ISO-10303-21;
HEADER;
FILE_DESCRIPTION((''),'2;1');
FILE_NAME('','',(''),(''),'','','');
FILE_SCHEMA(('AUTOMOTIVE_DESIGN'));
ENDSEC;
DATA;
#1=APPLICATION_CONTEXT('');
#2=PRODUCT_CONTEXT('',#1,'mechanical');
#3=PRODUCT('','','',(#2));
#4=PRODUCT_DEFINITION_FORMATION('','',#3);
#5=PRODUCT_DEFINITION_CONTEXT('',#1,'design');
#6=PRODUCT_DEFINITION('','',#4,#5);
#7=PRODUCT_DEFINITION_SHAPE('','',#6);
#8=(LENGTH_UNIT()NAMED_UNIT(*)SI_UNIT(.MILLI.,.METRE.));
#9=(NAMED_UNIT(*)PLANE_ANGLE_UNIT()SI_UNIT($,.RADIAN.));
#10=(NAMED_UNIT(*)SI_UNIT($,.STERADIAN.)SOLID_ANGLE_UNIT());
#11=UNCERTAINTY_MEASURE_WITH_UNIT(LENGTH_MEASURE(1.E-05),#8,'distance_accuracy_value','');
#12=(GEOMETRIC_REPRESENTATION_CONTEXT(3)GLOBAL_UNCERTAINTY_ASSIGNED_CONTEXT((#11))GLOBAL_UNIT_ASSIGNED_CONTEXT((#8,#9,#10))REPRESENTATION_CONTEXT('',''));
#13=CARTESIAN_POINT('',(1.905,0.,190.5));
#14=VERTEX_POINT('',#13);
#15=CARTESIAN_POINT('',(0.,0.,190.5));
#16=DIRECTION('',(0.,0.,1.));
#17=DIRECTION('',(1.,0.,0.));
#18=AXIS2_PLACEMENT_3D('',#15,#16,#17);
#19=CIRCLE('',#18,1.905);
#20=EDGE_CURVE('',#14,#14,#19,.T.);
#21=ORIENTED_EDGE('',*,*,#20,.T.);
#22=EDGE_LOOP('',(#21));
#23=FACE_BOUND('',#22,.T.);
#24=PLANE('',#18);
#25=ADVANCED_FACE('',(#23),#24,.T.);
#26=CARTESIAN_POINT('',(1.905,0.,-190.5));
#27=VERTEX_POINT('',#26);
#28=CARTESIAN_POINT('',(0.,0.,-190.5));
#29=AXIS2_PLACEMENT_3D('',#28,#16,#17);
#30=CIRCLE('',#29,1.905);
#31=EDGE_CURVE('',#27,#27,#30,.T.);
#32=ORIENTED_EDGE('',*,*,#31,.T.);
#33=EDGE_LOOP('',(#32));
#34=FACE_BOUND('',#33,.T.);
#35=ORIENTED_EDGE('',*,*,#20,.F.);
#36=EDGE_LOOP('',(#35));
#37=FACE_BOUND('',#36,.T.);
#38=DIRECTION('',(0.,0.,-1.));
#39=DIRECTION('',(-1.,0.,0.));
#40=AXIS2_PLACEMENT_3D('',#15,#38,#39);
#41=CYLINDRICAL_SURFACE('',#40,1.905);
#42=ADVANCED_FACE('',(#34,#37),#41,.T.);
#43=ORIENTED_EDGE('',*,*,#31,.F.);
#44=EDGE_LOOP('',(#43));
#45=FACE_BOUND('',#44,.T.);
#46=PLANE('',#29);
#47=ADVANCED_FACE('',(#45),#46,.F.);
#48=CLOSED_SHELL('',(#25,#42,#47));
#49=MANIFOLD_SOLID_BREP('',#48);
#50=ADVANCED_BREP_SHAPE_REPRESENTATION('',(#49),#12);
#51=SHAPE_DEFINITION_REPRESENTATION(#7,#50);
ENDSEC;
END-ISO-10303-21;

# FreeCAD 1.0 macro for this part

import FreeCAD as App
import Part
import Sketcher
from FreeCAD import Vector
Q = App.Units.Quantity

doc = App.newDocument("Part")
body = doc.addObject("PartDesign::Body", "Body")

# Sketch on XY plane
sketch1 = body.newObject("Sketcher::SketchObject", "Sketch")
sketch1.AttachmentSupport = (doc.getObject("XY_Plane"), [""])
sketch1.MapMode = "FlatFace"
sketch1.addGeometry(Part.Circle(Vector(0, 0, 0), Vector(0, 0, 1), 1.9), False)
sketch1.addConstraint([
    Sketcher.Constraint("Coincident", 0, 3, -1, 1),
    Sketcher.Constraint("Diameter", 0, Q("0.15 in")),
])
pad1 = body.newObject("PartDesign::Pad", "Pad")
pad1.Profile = sketch1
pad1.Type = "TwoLengths"
pad1.Length = Q("7.5 in")
pad1.Length2 = Q("7.5 in")

doc.recompute()
